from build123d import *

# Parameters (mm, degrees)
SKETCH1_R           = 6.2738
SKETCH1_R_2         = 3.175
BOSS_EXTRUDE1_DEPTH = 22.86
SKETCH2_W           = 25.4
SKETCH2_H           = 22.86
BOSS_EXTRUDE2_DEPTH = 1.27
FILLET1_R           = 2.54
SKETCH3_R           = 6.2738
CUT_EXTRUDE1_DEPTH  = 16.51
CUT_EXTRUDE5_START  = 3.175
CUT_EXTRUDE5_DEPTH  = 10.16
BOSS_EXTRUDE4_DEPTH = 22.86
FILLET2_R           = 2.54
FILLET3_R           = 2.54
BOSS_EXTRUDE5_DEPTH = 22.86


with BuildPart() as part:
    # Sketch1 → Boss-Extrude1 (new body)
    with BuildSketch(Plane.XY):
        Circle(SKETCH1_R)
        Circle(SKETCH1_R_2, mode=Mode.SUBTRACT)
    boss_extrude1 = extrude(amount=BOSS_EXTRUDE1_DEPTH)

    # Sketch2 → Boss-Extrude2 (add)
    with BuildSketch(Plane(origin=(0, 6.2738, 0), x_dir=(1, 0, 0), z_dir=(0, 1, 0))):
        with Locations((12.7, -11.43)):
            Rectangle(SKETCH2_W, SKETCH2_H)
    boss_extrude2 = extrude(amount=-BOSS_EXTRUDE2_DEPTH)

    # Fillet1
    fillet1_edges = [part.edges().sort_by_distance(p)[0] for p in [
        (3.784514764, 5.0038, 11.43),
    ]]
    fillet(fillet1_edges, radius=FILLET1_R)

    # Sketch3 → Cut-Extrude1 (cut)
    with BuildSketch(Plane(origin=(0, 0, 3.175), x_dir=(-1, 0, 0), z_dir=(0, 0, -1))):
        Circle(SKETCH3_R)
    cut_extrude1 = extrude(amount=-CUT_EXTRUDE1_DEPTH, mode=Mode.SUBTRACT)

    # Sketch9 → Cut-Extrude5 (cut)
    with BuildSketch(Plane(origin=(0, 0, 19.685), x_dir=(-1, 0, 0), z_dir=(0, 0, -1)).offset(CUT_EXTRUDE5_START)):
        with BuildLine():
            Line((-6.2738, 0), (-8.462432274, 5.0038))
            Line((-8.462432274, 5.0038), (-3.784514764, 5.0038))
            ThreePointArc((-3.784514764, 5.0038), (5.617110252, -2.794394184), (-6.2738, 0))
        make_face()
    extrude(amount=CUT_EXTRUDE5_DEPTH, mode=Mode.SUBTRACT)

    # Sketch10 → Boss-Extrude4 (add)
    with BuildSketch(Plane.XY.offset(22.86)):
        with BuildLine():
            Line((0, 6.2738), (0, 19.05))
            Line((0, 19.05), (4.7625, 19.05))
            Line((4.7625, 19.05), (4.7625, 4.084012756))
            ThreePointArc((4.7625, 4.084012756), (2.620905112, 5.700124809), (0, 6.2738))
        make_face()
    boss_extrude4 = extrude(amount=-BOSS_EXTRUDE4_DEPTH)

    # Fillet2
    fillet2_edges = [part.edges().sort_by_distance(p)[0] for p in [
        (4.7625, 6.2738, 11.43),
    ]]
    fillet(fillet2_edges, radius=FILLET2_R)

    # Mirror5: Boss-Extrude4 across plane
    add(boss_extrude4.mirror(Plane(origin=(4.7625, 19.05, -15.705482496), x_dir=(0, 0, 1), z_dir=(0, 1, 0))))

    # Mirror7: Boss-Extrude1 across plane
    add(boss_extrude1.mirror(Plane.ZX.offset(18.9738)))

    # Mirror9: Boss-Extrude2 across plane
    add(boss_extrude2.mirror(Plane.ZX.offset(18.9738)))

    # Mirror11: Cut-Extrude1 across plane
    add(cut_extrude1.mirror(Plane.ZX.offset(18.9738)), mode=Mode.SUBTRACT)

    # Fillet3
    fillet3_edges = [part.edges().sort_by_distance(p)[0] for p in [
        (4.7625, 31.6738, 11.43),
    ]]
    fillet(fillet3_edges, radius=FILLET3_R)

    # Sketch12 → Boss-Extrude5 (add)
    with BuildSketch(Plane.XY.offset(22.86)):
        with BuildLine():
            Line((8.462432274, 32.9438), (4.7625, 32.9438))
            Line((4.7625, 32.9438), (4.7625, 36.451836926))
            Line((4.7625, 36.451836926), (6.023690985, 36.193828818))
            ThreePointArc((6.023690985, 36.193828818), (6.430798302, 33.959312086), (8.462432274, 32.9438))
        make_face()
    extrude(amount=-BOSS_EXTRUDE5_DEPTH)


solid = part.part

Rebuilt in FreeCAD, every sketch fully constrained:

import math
import FreeCAD as App
import Part
import Sketcher

V = App.Vector
Q = App.Units.Quantity


def edges_at(feature, points):
    """Names of the edges that pass closest to the given points."""
    edges = feature.Shape.Edges
    near = lambda p: min(range(len(edges)), key=lambda i: edges[i].distToShape(Part.Vertex(*p))[0])
    return sorted({f"Edge{near(p) + 1}" for p in points})

doc = App.newDocument("Part")
params = doc.addObject("Spreadsheet::Sheet", "Params")
for row, (alias, value) in enumerate([
    ("sketch1_diameter", "0.25 in"),
    ("sketch1_diameter2", "0.494 in"),
    ("pad1_length", "0.9 in"),
    ("sketch2_width", "1 in"),
    ("sketch2_height", "0.9 in"),
    ("pad2_length", "0.05 in"),
    ("fillet_radius", "0.1 in"),
    ("sketch3_diameter", "0.494 in"),
    ("pocket1_length", "0.65 in"),
    ("sketch4_radius", "0.247 in"),
    ("pocket2_length", "0.4 in"),
    ("sketch5_radius", "0.247 in"),
    ("sketch5_width", "0.1875 in"),
    ("sketch5_height", "0.503 in"),
    ("pad3_length", "0.9 in"),
    ("fillet2_radius", "0.1 in"),
    ("fillet3_radius", "0.1 in"),
    ("sketch6_radius", "0.1 in"),
    ("pad4_length", "0.9 in"),
], start=1):
    params.set(f"A{row}", alias)
    params.set(f"B{row}", "=" + value)
    params.setAlias(f"B{row}", alias)

body = doc.addObject("PartDesign::Body", "Body")

sketch1 = body.newObject("Sketcher::SketchObject", "Sketch")
sketch1.AttachmentSupport = (doc.getObject("XY_Plane"), [""])
sketch1.MapMode = "FlatFace"
sketch1.addGeometry(Part.Circle(V(0, 0, 0), V(0, 0, 1), 6.2738), False)
sketch1.addGeometry(Part.Circle(V(0, 0, 0), V(0, 0, 1), 3.175), False)
sketch1.addConstraint(Sketcher.Constraint("Coincident", 0, 3, -1, 1))
sketch1.addConstraint(Sketcher.Constraint("Coincident", 1, 3, -1, 1))
sketch1.addConstraint(Sketcher.Constraint("Diameter", 1, Q("0.25 in")))
sketch1.addConstraint(Sketcher.Constraint("Diameter", 0, Q("0.494 in")))
sketch1.setExpression("Constraints[2]", "Params.sketch1_diameter")
sketch1.setExpression("Constraints[3]", "Params.sketch1_diameter2")
pad1 = body.newObject("PartDesign::Pad", "Pad")
pad1.Profile = sketch1
pad1.setExpression("Length", "Params.pad1_length")

sketch2 = body.newObject("Sketcher::SketchObject", "Sketch001")
sketch2.AttachmentSupport = (doc.getObject("XZ_Plane"), [""])
sketch2.MapMode = "FlatFace"
sketch2.AttachmentOffset = App.Placement(V(0, 0, -0.247 * 25.4), App.Rotation())
sketch2.addGeometry(Part.LineSegment(V(0, 0, 0), V(0, 22.86, 0)), False)
sketch2.addGeometry(Part.LineSegment(V(0, 22.86, 0), V(25.4, 22.86, 0)), False)
sketch2.addGeometry(Part.LineSegment(V(25.4, 22.86, 0), V(25.4, 0, 0)), False)
sketch2.addGeometry(Part.LineSegment(V(25.4, 0, 0), V(0, 0, 0)), False)
sketch2.addConstraint(Sketcher.Constraint("Coincident", 0, 2, 1, 1))
sketch2.addConstraint(Sketcher.Constraint("Coincident", 1, 2, 2, 1))
sketch2.addConstraint(Sketcher.Constraint("Coincident", 2, 2, 3, 1))
sketch2.addConstraint(Sketcher.Constraint("Coincident", 3, 2, 0, 1))
sketch2.addConstraint(Sketcher.Constraint("Vertical", 0))
sketch2.addConstraint(Sketcher.Constraint("Horizontal", 1))
sketch2.addConstraint(Sketcher.Constraint("Vertical", 2))
sketch2.addConstraint(Sketcher.Constraint("Horizontal", 3))
sketch2.addConstraint(Sketcher.Constraint("Coincident", 3, 2, -1, 1))
sketch2.addConstraint(Sketcher.Constraint("DistanceX", 1, 1, 1, 2, Q("1 in")))
sketch2.addConstraint(Sketcher.Constraint("DistanceY", 0, 1, 0, 2, Q("0.9 in")))
sketch2.setExpression("Constraints[9]", "Params.sketch2_width")
sketch2.setExpression("Constraints[10]", "Params.sketch2_height")
pad2 = body.newObject("PartDesign::Pad", "Pad001")
pad2.Profile = sketch2
pad2.setExpression("Length", "Params.pad2_length")
doc.recompute()

fillet = body.newObject("PartDesign::Fillet", "Fillet")
fillet.Base = (pad2, edges_at(pad2, [(3.785, 5.004, 11.43)]))
fillet.setExpression("Radius", "Params.fillet_radius")

sketch3 = body.newObject("Sketcher::SketchObject", "Sketch002")
sketch3.AttachmentSupport = (doc.getObject("XY_Plane"), [""])
sketch3.MapMode = "FlatFace"
sketch3.AttachmentOffset = App.Placement(V(0, 0, 0.125 * 25.4), App.Rotation())
sketch3.addGeometry(Part.Circle(V(0, 0, 0), V(0, 0, 1), 6.2738), False)
sketch3.addConstraint(Sketcher.Constraint("Coincident", 0, 3, -1, 1))
sketch3.addConstraint(Sketcher.Constraint("Diameter", 0, Q("0.494 in")))
sketch3.setExpression("Constraints[1]", "Params.sketch3_diameter")
pocket1 = body.newObject("PartDesign::Pocket", "Pocket")
pocket1.Profile = sketch3
pocket1.setExpression("Length", "Params.pocket1_length")
pocket1.Reversed = True

sketch4 = body.newObject("Sketcher::SketchObject", "Sketch003")
sketch4.AttachmentSupport = (doc.getObject("XY_Plane"), [""])
sketch4.MapMode = "FlatFace"
sketch4.AttachmentOffset = App.Placement(V(0, 0, 0.65 * 25.4), App.Rotation())
sketch4.addGeometry(Part.LineSegment(V(8.462432, 5.0038, 0), V(6.2738, 0, 0)), False)
sketch4.addGeometry(Part.ArcOfCircle(Part.Circle(V(0, 0, 0), V(0, 0, 1), 6.2738), math.radians(52.898758), math.radians(360)), False)
sketch4.addGeometry(Part.LineSegment(V(3.784515, 5.0038, 0), V(8.462432, 5.0038, 0)), False)
sketch4.addConstraint(Sketcher.Constraint("Coincident", 0, 2, 1, 2))
sketch4.addConstraint(Sketcher.Constraint("Coincident", 1, 1, 2, 1))
sketch4.addConstraint(Sketcher.Constraint("Coincident", 2, 2, 0, 1))
sketch4.addConstraint(Sketcher.Constraint("Horizontal", 2))
sketch4.addConstraint(Sketcher.Constraint("Coincident", 1, 3, -1, 1))
sketch4.addConstraint(Sketcher.Constraint("PointOnObject", 0, 2, -1))
sketch4.addConstraint(Sketcher.Constraint("Radius", 1, Q("0.247 in")))
sketch4.addConstraint(Sketcher.Constraint("DistanceY", -1, 1, 1, 1, Q("0.197 in")))
sketch4.addConstraint(Sketcher.Constraint("DistanceX", 2, 1, 2, 2, Q("4.677918 mm")))
sketch4.setExpression("Constraints[6]", "Params.sketch4_radius")
pocket2 = body.newObject("PartDesign::Pocket", "Pocket001")
pocket2.Profile = sketch4
pocket2.setExpression("Length", "Params.pocket2_length")

sketch5 = body.newObject("Sketcher::SketchObject", "Sketch004")
sketch5.AttachmentSupport = (doc.getObject("XY_Plane"), [""])
sketch5.MapMode = "FlatFace"
sketch5.AttachmentOffset = App.Placement(V(0, 0, 0.9 * 25.4), App.Rotation())
sketch5.addGeometry(Part.LineSegment(V(0, 19.05, 0), V(0, 6.2738, 0)), False)
sketch5.addGeometry(Part.ArcOfCircle(Part.Circle(V(0, 0, 0), V(0, 0, 1), 6.2738), math.radians(40.61426), math.radians(90)), False)
sketch5.addGeometry(Part.LineSegment(V(4.7625, 4.084013, 0), V(4.7625, 19.05, 0)), False)
sketch5.addGeometry(Part.LineSegment(V(4.7625, 19.05, 0), V(0, 19.05, 0)), False)
sketch5.addConstraint(Sketcher.Constraint("Coincident", 0, 2, 1, 2))
sketch5.addConstraint(Sketcher.Constraint("Coincident", 1, 1, 2, 1))
sketch5.addConstraint(Sketcher.Constraint("Coincident", 2, 2, 3, 1))
sketch5.addConstraint(Sketcher.Constraint("Coincident", 3, 2, 0, 1))
sketch5.addConstraint(Sketcher.Constraint("Vertical", 0))
sketch5.addConstraint(Sketcher.Constraint("Vertical", 2))
sketch5.addConstraint(Sketcher.Constraint("Horizontal", 3))
sketch5.addConstraint(Sketcher.Constraint("Coincident", 1, 3, -1, 1))
sketch5.addConstraint(Sketcher.Constraint("PointOnObject", 0, 2, -2))
sketch5.addConstraint(Sketcher.Constraint("Radius", 1, Q("0.247 in")))
sketch5.addConstraint(Sketcher.Constraint("DistanceX", 3, 2, 3, 1, Q("0.1875 in")))
sketch5.addConstraint(Sketcher.Constraint("DistanceY", 0, 2, 0, 1, Q("0.503 in")))
sketch5.setExpression("Constraints[9]", "Params.sketch5_radius")
sketch5.setExpression("Constraints[10]", "Params.sketch5_width")
sketch5.setExpression("Constraints[11]", "Params.sketch5_height")
pad3 = body.newObject("PartDesign::Pad", "Pad002")
pad3.Profile = sketch5
pad3.setExpression("Length", "Params.pad3_length")
pad3.Reversed = True
doc.recompute()

fillet2 = body.newObject("PartDesign::Fillet", "Fillet001")
fillet2.Base = (pad3, edges_at(pad3, [(4.763, 6.274, 11.43)]))
fillet2.setExpression("Radius", "Params.fillet2_radius")
doc.recompute()

datumplane = body.newObject("PartDesign::Plane", "DatumPlane")
datumplane.AttachmentSupport = (doc.getObject("XZ_Plane"), [""])
datumplane.MapMode = "FlatFace"
datumplane.AttachmentOffset = App.Placement(V(0, 0, -0.75 * 25.4), App.Rotation())
mirrored = body.newObject("PartDesign::Mirrored", "Mirrored")
mirrored.Originals = [pad3]
mirrored.MirrorPlane = (datumplane, [""])
body.Tip = mirrored
doc.recompute()

datumplane2 = body.newObject("PartDesign::Plane", "DatumPlane001")
datumplane2.AttachmentSupport = (doc.getObject("XZ_Plane"), [""])
datumplane2.MapMode = "FlatFace"
datumplane2.AttachmentOffset = App.Placement(V(0, 0, -0.747 * 25.4), App.Rotation())
mirrored2 = body.newObject("PartDesign::Mirrored", "Mirrored001")
mirrored2.Originals = [pad1]
mirrored2.MirrorPlane = (datumplane2, [""])
body.Tip = mirrored2
doc.recompute()

datumplane3 = body.newObject("PartDesign::Plane", "DatumPlane002")
datumplane3.AttachmentSupport = (doc.getObject("XZ_Plane"), [""])
datumplane3.MapMode = "FlatFace"
datumplane3.AttachmentOffset = App.Placement(V(0, 0, -0.747 * 25.4), App.Rotation())
mirrored3 = body.newObject("PartDesign::Mirrored", "Mirrored002")
mirrored3.Originals = [pad2]
mirrored3.MirrorPlane = (datumplane3, [""])
body.Tip = mirrored3
doc.recompute()

datumplane4 = body.newObject("PartDesign::Plane", "DatumPlane003")
datumplane4.AttachmentSupport = (doc.getObject("XZ_Plane"), [""])
datumplane4.MapMode = "FlatFace"
datumplane4.AttachmentOffset = App.Placement(V(0, 0, -0.747 * 25.4), App.Rotation())
mirrored4 = body.newObject("PartDesign::Mirrored", "Mirrored003")
mirrored4.Originals = [pocket1]
mirrored4.MirrorPlane = (datumplane4, [""])
body.Tip = mirrored4
doc.recompute()

fillet3 = body.newObject("PartDesign::Fillet", "Fillet002")
fillet3.Base = (mirrored4, edges_at(mirrored4, [(4.763, 31.674, 11.43)]))
fillet3.setExpression("Radius", "Params.fillet3_radius")

sketch6 = body.newObject("Sketcher::SketchObject", "Sketch005")
sketch6.AttachmentSupport = (doc.getObject("XY_Plane"), [""])
sketch6.MapMode = "FlatFace"
sketch6.AttachmentOffset = App.Placement(V(0, 0, 0.9 * 25.4), App.Rotation())
sketch6.addGeometry(Part.LineSegment(V(4.7625, 32.9438, 0), V(8.462432, 32.9438, 0)), False)
sketch6.addGeometry(Part.ArcOfCircle(Part.Circle(V(8.462432, 35.4838, 0), V(0, 0, 1), 2.54), math.radians(163.767313), math.radians(270)), False)
sketch6.addGeometry(Part.LineSegment(V(6.023691, 36.193829, 0), V(4.7625, 36.451837, 0)), False)
sketch6.addGeometry(Part.LineSegment(V(4.7625, 36.451837, 0), V(4.7625, 32.9438, 0)), False)
sketch6.addConstraint(Sketcher.Constraint("Tangent", 0, 2, 1, 2))
sketch6.addConstraint(Sketcher.Constraint("Coincident", 1, 1, 2, 1))
sketch6.addConstraint(Sketcher.Constraint("Coincident", 2, 2, 3, 1))
sketch6.addConstraint(Sketcher.Constraint("Coincident", 3, 2, 0, 1))
sketch6.addConstraint(Sketcher.Constraint("Horizontal", 0))
sketch6.addConstraint(Sketcher.Constraint("Vertical", 3))
sketch6.addConstraint(Sketcher.Constraint("Radius", 1, Q("0.1 in")))
sketch6.addConstraint(Sketcher.Constraint("DistanceY", -1, 1, 1, 3, Q("1.397 in")))
sketch6.addConstraint(Sketcher.Constraint("DistanceX", -1, 1, 2, 2, Q("0.1875 in")))
sketch6.addConstraint(Sketcher.Constraint("Distance", 2, Q("1.287311 mm")))
sketch6.addConstraint(Sketcher.Constraint("DistanceX", 0, 1, 0, 2, Q("3.699932 mm")))
sketch6.addConstraint(Sketcher.Constraint("DistanceY", 3, 2, 3, 1, Q("3.508037 mm")))
sketch6.setExpression("Constraints[6]", "Params.sketch6_radius")
pad4 = body.newObject("PartDesign::Pad", "Pad003")
pad4.Profile = sketch6
pad4.setExpression("Length", "Params.pad4_length")
pad4.Reversed = True

doc.recompute()
